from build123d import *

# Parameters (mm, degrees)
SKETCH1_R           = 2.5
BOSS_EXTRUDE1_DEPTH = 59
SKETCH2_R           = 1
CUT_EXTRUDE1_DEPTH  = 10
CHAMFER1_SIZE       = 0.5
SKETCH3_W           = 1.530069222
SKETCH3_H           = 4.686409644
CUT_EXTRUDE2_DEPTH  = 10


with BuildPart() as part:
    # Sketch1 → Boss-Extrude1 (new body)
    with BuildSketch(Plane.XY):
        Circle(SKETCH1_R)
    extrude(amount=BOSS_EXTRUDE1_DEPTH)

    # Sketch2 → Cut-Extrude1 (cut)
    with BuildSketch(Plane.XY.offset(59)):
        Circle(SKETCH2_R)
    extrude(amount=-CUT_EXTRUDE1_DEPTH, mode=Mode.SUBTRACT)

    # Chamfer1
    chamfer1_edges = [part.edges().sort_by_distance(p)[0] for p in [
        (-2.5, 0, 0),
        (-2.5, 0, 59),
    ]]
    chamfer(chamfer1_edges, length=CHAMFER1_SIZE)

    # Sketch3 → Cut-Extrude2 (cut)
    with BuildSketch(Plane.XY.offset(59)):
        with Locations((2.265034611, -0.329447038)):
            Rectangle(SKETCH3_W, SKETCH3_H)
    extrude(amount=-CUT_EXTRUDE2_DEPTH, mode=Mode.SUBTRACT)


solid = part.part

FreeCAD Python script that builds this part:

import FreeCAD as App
import Part
import Sketcher
from FreeCAD import Vector


def edges_at(feature, points):
    """Names of the edges that pass closest to the given points."""
    edges = feature.Shape.Edges
    near = lambda p: min(range(len(edges)), key=lambda i: edges[i].distToShape(Part.Vertex(*p))[0])
    return sorted({f"Edge{near(p) + 1}" for p in points})

doc = App.newDocument("Part")
params = doc.addObject("Spreadsheet::Sheet", "Params")
for row, (alias, value) in enumerate([
    ("sketch1_diameter", "5 mm"),
    ("pad1_length", "59 mm"),
    ("sketch2_diameter", "2 mm"),
    ("pocket1_length", "10 mm"),
    ("chamfer_size", "0.5 mm"),
    ("pocket2_length", "10 mm"),
], start=1):
    params.set(f"A{row}", alias)
    params.set(f"B{row}", "=" + value)
    params.setAlias(f"B{row}", alias)

body = doc.addObject("PartDesign::Body", "Body")

sketch1 = doc.addObject("Sketcher::SketchObject", "Sketch")
body.addObject(sketch1)
sketch1.AttachmentSupport = (doc.XY_Plane, [""])
sketch1.MapMode = "FlatFace"
sketch1.addGeometry(Part.Circle(Vector(0, 0, 0), Vector(0, 0, 1), 2.5), False)
sketch1.addConstraint(Sketcher.Constraint("Coincident", 0, 3, -1, 1))
sketch1.addConstraint(Sketcher.Constraint("Diameter", 0, 5.0))
sketch1.setExpression("Constraints[1]", "Params.sketch1_diameter")
pad1 = doc.addObject("PartDesign::Pad", "Pad")
body.addObject(pad1)
pad1.Profile = sketch1
pad1.setExpression("Length", "Params.pad1_length")

sketch2 = doc.addObject("Sketcher::SketchObject", "Sketch001")
body.addObject(sketch2)
sketch2.AttachmentSupport = (doc.XY_Plane, [""])
sketch2.MapMode = "FlatFace"
sketch2.AttachmentOffset = App.Placement(Vector(0, 0, 59), App.Rotation())
sketch2.addGeometry(Part.Circle(Vector(0, 0, 0), Vector(0, 0, 1), 1), False)
sketch2.addConstraint(Sketcher.Constraint("Coincident", 0, 3, -1, 1))
sketch2.addConstraint(Sketcher.Constraint("Diameter", 0, 2.0))
sketch2.setExpression("Constraints[1]", "Params.sketch2_diameter")
pocket1 = doc.addObject("PartDesign::Pocket", "Pocket")
body.addObject(pocket1)
pocket1.Profile = sketch2
pocket1.setExpression("Length", "Params.pocket1_length")
doc.recompute()

chamfer = doc.addObject("PartDesign::Chamfer", "Chamfer")
body.addObject(chamfer)
chamfer.Base = (pocket1, edges_at(pocket1, [(-2.5, 0, 0), (-2.5, 0, 59)]))
chamfer.setExpression("Size", "Params.chamfer_size")

sketch3 = doc.addObject("Sketcher::SketchObject", "Sketch002")
body.addObject(sketch3)
sketch3.AttachmentSupport = (doc.XY_Plane, [""])
sketch3.MapMode = "FlatFace"
sketch3.AttachmentOffset = App.Placement(Vector(0, 0, 59), App.Rotation())
sketch3.addGeometry(Part.LineSegment(Vector(1.5, 2, 0), Vector(1.5, -2.7, 0)), False)
sketch3.addGeometry(Part.LineSegment(Vector(1.5, -2.7, 0), Vector(3, -2.7, 0)), False)
sketch3.addGeometry(Part.LineSegment(Vector(3, -2.7, 0), Vector(3, 2, 0)), False)
sketch3.addGeometry(Part.LineSegment(Vector(3, 2, 0), Vector(1.5, 2, 0)), False)
sketch3.addConstraint(Sketcher.Constraint("Coincident", 0, 2, 1, 1))
sketch3.addConstraint(Sketcher.Constraint("Coincident", 1, 2, 2, 1))
sketch3.addConstraint(Sketcher.Constraint("Coincident", 2, 2, 3, 1))
sketch3.addConstraint(Sketcher.Constraint("Coincident", 3, 2, 0, 1))
sketch3.addConstraint(Sketcher.Constraint("Vertical", 0))
sketch3.addConstraint(Sketcher.Constraint("Horizontal", 1))
sketch3.addConstraint(Sketcher.Constraint("Vertical", 2))
sketch3.addConstraint(Sketcher.Constraint("Horizontal", 3))
sketch3.addConstraint(Sketcher.Constraint("DistanceX", -1, 1, 0, 2, 1.5))
sketch3.addConstraint(Sketcher.Constraint("DistanceX", 1, 1, 1, 2, 1.530069))
sketch3.addConstraint(Sketcher.Constraint("DistanceY", 0, 2, 0, 1, 4.68641))
sketch3.addConstraint(Sketcher.Constraint("DistanceY", 0, 2, -1, 1, 2.672652))
pocket2 = doc.addObject("PartDesign::Pocket", "Pocket001")
body.addObject(pocket2)
pocket2.Profile = sketch3
pocket2.setExpression("Length", "Params.pocket2_length")

doc.recompute()
